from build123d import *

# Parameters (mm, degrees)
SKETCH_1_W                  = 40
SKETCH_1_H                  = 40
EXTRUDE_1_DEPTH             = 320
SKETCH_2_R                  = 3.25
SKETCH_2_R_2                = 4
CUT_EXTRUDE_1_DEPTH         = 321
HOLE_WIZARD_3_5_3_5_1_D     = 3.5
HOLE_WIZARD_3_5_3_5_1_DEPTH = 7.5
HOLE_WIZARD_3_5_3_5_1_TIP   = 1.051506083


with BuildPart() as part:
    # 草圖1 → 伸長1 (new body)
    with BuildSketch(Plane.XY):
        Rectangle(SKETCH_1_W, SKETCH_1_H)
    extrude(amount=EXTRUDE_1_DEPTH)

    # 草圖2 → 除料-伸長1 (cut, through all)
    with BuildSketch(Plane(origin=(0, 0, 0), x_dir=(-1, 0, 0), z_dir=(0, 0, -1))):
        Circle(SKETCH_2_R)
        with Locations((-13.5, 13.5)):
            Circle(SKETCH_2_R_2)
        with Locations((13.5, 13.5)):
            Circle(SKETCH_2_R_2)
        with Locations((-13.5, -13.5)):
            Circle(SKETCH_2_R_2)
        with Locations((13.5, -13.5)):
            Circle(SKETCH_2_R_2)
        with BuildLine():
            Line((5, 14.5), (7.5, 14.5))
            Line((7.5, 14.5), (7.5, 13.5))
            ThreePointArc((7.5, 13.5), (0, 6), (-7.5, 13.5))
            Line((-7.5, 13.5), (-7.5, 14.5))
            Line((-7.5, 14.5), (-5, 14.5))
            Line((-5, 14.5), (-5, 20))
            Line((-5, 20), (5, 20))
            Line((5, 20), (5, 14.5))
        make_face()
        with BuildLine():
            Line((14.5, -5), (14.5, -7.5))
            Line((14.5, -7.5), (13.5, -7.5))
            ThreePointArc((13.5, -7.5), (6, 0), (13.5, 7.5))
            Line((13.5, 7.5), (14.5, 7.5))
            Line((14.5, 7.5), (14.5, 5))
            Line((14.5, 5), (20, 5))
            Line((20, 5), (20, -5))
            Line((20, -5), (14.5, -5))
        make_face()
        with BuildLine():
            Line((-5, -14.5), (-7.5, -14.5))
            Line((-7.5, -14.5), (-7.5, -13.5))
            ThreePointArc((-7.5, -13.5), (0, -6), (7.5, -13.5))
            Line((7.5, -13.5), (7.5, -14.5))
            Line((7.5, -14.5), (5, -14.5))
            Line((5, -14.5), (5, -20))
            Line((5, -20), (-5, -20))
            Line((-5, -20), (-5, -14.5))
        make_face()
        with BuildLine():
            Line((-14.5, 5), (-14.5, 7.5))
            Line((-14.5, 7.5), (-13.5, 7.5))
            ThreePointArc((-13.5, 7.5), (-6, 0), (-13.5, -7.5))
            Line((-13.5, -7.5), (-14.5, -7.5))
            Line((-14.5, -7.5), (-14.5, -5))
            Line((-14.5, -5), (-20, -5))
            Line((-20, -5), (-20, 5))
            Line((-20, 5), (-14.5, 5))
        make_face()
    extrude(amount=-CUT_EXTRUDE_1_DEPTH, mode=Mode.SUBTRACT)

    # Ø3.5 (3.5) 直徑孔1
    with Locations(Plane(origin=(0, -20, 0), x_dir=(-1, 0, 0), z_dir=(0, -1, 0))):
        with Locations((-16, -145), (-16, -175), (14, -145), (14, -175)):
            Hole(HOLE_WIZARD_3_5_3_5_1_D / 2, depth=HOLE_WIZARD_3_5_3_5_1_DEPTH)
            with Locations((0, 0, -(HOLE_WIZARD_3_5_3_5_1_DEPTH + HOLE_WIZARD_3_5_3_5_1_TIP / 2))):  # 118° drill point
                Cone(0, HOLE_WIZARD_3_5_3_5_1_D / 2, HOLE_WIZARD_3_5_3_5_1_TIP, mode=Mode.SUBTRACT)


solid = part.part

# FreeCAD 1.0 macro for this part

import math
import FreeCAD as App
import Part
import Sketcher
from FreeCAD import Vector

doc = App.newDocument("Part")
body = doc.addObject("PartDesign::Body", "Body")

# Sketch on XY plane
sketch1 = doc.addObject("Sketcher::SketchObject", "Sketch")
body.addObject(sketch1)
sketch1.AttachmentSupport = (doc.XY_Plane, [""])
sketch1.MapMode = "FlatFace"
sketch1.addGeometry(Part.LineSegment(Vector(-20, 20, 0), Vector(-20, -20, 0)), False)
sketch1.addGeometry(Part.LineSegment(Vector(-20, -20, 0), Vector(20, -20, 0)), False)
sketch1.addGeometry(Part.LineSegment(Vector(20, -20, 0), Vector(20, 20, 0)), False)
sketch1.addGeometry(Part.LineSegment(Vector(20, 20, 0), Vector(-20, 20, 0)), False)
sketch1.addConstraint(Sketcher.Constraint("Coincident", 0, 2, 1, 1))
sketch1.addConstraint(Sketcher.Constraint("Coincident", 1, 2, 2, 1))
sketch1.addConstraint(Sketcher.Constraint("Coincident", 2, 2, 3, 1))
sketch1.addConstraint(Sketcher.Constraint("Coincident", 3, 2, 0, 1))
sketch1.addConstraint(Sketcher.Constraint("Vertical", 0))
sketch1.addConstraint(Sketcher.Constraint("Horizontal", 1))
sketch1.addConstraint(Sketcher.Constraint("Vertical", 2))
sketch1.addConstraint(Sketcher.Constraint("Horizontal", 3))
sketch1.addConstraint(Sketcher.Constraint("Symmetric", 0, 2, 2, 2, -1, 1))
sketch1.addConstraint(Sketcher.Constraint("Equal", 3, 0))
sketch1.addConstraint(Sketcher.Constraint("DistanceX", 1, 1, 1, 2, 40.0))
pad1 = doc.addObject("PartDesign::Pad", "Pad")
body.addObject(pad1)
pad1.Profile = sketch1
pad1.Length = 320

# Sketch on XY plane
sketch2 = doc.addObject("Sketcher::SketchObject", "Sketch001")
body.addObject(sketch2)
sketch2.AttachmentSupport = (doc.XY_Plane, [""])
sketch2.MapMode = "FlatFace"
sketch2.addGeometry(Part.Circle(Vector(0, 0, 0), Vector(0, 0, 1), 3.25), False)
sketch2.addGeometry(Part.Circle(Vector(13.5, 13.5, 0), Vector(0, 0, 1), 4), False)
sketch2.addGeometry(Part.Circle(Vector(-13.5, 13.5, 0), Vector(0, 0, 1), 4), False)
sketch2.addGeometry(Part.Circle(Vector(13.5, -13.5, 0), Vector(0, 0, 1), 4), False)
sketch2.addGeometry(Part.Circle(Vector(-13.5, -13.5, 0), Vector(0, 0, 1), 4), False)
sketch2.addGeometry(Part.LineSegment(Vector(-7.5, 14.5, 0), Vector(-5, 14.5, 0)), False)
sketch2.addGeometry(Part.LineSegment(Vector(-5, 14.5, 0), Vector(-5, 20, 0)), False)
sketch2.addGeometry(Part.LineSegment(Vector(-5, 20, 0), Vector(5, 20, 0)), False)
sketch2.addGeometry(Part.LineSegment(Vector(5, 20, 0), Vector(5, 14.5, 0)), False)
sketch2.addGeometry(Part.LineSegment(Vector(5, 14.5, 0), Vector(7.5, 14.5, 0)), False)
sketch2.addGeometry(Part.LineSegment(Vector(7.5, 14.5, 0), Vector(7.5, 13.5, 0)), False)
sketch2.addGeometry(Part.ArcOfCircle(Part.Circle(Vector(0, 13.5, 0), Vector(0, 0, 1), 7.5), math.radians(180), math.radians(360)), False)
sketch2.addGeometry(Part.LineSegment(Vector(-7.5, 13.5, 0), Vector(-7.5, 14.5, 0)), False)
sketch2.addGeometry(Part.LineSegment(Vector(-14.5, -7.5, 0), Vector(-14.5, -5, 0)), False)
sketch2.addGeometry(Part.LineSegment(Vector(-14.5, -5, 0), Vector(-20, -5, 0)), False)
sketch2.addGeometry(Part.LineSegment(Vector(-20, -5, 0), Vector(-20, 5, 0)), False)
sketch2.addGeometry(Part.LineSegment(Vector(-20, 5, 0), Vector(-14.5, 5, 0)), False)
sketch2.addGeometry(Part.LineSegment(Vector(-14.5, 5, 0), Vector(-14.5, 7.5, 0)), False)
sketch2.addGeometry(Part.LineSegment(Vector(-14.5, 7.5, 0), Vector(-13.5, 7.5, 0)), False)
sketch2.addGeometry(Part.ArcOfCircle(Part.Circle(Vector(-13.5, 0, 0), Vector(0, 0, 1), 7.5), math.radians(-90), math.radians(90)), False)
sketch2.addGeometry(Part.LineSegment(Vector(-13.5, -7.5, 0), Vector(-14.5, -7.5, 0)), False)
sketch2.addGeometry(Part.LineSegment(Vector(7.5, -14.5, 0), Vector(5, -14.5, 0)), False)
sketch2.addGeometry(Part.LineSegment(Vector(5, -14.5, 0), Vector(5, -20, 0)), False)
sketch2.addGeometry(Part.LineSegment(Vector(5, -20, 0), Vector(-5, -20, 0)), False)
sketch2.addGeometry(Part.LineSegment(Vector(-5, -20, 0), Vector(-5, -14.5, 0)), False)
sketch2.addGeometry(Part.LineSegment(Vector(-5, -14.5, 0), Vector(-7.5, -14.5, 0)), False)
sketch2.addGeometry(Part.LineSegment(Vector(-7.5, -14.5, 0), Vector(-7.5, -13.5, 0)), False)
sketch2.addGeometry(Part.ArcOfCircle(Part.Circle(Vector(0, -13.5, 0), Vector(0, 0, 1), 7.5), math.radians(0), math.radians(180)), False)
sketch2.addGeometry(Part.LineSegment(Vector(7.5, -13.5, 0), Vector(7.5, -14.5, 0)), False)
sketch2.addGeometry(Part.LineSegment(Vector(14.5, 7.5, 0), Vector(14.5, 5, 0)), False)
sketch2.addGeometry(Part.LineSegment(Vector(14.5, 5, 0), Vector(20, 5, 0)), False)
sketch2.addGeometry(Part.LineSegment(Vector(20, 5, 0), Vector(20, -5, 0)), False)
sketch2.addGeometry(Part.LineSegment(Vector(20, -5, 0), Vector(14.5, -5, 0)), False)
sketch2.addGeometry(Part.LineSegment(Vector(14.5, -5, 0), Vector(14.5, -7.5, 0)), False)
sketch2.addGeometry(Part.LineSegment(Vector(14.5, -7.5, 0), Vector(13.5, -7.5, 0)), False)
sketch2.addGeometry(Part.ArcOfCircle(Part.Circle(Vector(13.5, 0, 0), Vector(0, 0, 1), 7.5), math.radians(90), math.radians(270)), False)
sketch2.addGeometry(Part.LineSegment(Vector(13.5, 7.5, 0), Vector(14.5, 7.5, 0)), False)
sketch2.addConstraint(Sketcher.Constraint("Coincident", 5, 2, 6, 1))
sketch2.addConstraint(Sketcher.Constraint("Coincident", 6, 2, 7, 1))
sketch2.addConstraint(Sketcher.Constraint("Coincident", 7, 2, 8, 1))
sketch2.addConstraint(Sketcher.Constraint("Coincident", 8, 2, 9, 1))
sketch2.addConstraint(Sketcher.Constraint("Coincident", 9, 2, 10, 1))
sketch2.addConstraint(Sketcher.Constraint("Tangent", 10, 2, 11, 2))
sketch2.addConstraint(Sketcher.Constraint("Tangent", 11, 1, 12, 1))
sketch2.addConstraint(Sketcher.Constraint("Coincident", 12, 2, 5, 1))
sketch2.addConstraint(Sketcher.Constraint("Coincident", 13, 2, 14, 1))
sketch2.addConstraint(Sketcher.Constraint("Coincident", 14, 2, 15, 1))
sketch2.addConstraint(Sketcher.Constraint("Coincident", 15, 2, 16, 1))
sketch2.addConstraint(Sketcher.Constraint("Coincident", 16, 2, 17, 1))
sketch2.addConstraint(Sketcher.Constraint("Coincident", 17, 2, 18, 1))
sketch2.addConstraint(Sketcher.Constraint("Tangent", 18, 2, 19, 2))
sketch2.addConstraint(Sketcher.Constraint("Tangent", 19, 1, 20, 1))
sketch2.addConstraint(Sketcher.Constraint("Coincident", 20, 2, 13, 1))
sketch2.addConstraint(Sketcher.Constraint("Coincident", 21, 2, 22, 1))
sketch2.addConstraint(Sketcher.Constraint("Coincident", 22, 2, 23, 1))
sketch2.addConstraint(Sketcher.Constraint("Coincident", 23, 2, 24, 1))
sketch2.addConstraint(Sketcher.Constraint("Coincident", 24, 2, 25, 1))
sketch2.addConstraint(Sketcher.Constraint("Coincident", 25, 2, 26, 1))
sketch2.addConstraint(Sketcher.Constraint("Tangent", 26, 2, 27, 2))
sketch2.addConstraint(Sketcher.Constraint("Tangent", 27, 1, 28, 1))
sketch2.addConstraint(Sketcher.Constraint("Coincident", 28, 2, 21, 1))
sketch2.addConstraint(Sketcher.Constraint("Coincident", 29, 2, 30, 1))
sketch2.addConstraint(Sketcher.Constraint("Coincident", 30, 2, 31, 1))
sketch2.addConstraint(Sketcher.Constraint("Coincident", 31, 2, 32, 1))
sketch2.addConstraint(Sketcher.Constraint("Coincident", 32, 2, 33, 1))
sketch2.addConstraint(Sketcher.Constraint("Coincident", 33, 2, 34, 1))
sketch2.addConstraint(Sketcher.Constraint("Tangent", 34, 2, 35, 2))
sketch2.addConstraint(Sketcher.Constraint("Tangent", 35, 1, 36, 1))
sketch2.addConstraint(Sketcher.Constraint("Coincident", 36, 2, 29, 1))
sketch2.addConstraint(Sketcher.Constraint("Horizontal", 5))
sketch2.addConstraint(Sketcher.Constraint("Vertical", 6))
sketch2.addConstraint(Sketcher.Constraint("Horizontal", 7))
sketch2.addConstraint(Sketcher.Constraint("Vertical", 8))
sketch2.addConstraint(Sketcher.Constraint("Horizontal", 9))
sketch2.addConstraint(Sketcher.Constraint("Vertical", 10))
sketch2.addConstraint(Sketcher.Constraint("Vertical", 12))
sketch2.addConstraint(Sketcher.Constraint("Vertical", 13))
sketch2.addConstraint(Sketcher.Constraint("Horizontal", 14))
sketch2.addConstraint(Sketcher.Constraint("Vertical", 15))
sketch2.addConstraint(Sketcher.Constraint("Horizontal", 16))
sketch2.addConstraint(Sketcher.Constraint("Vertical", 17))
sketch2.addConstraint(Sketcher.Constraint("Horizontal", 18))
sketch2.addConstraint(Sketcher.Constraint("Horizontal", 20))
sketch2.addConstraint(Sketcher.Constraint("Horizontal", 21))
sketch2.addConstraint(Sketcher.Constraint("Vertical", 22))
sketch2.addConstraint(Sketcher.Constraint("Horizontal", 23))
sketch2.addConstraint(Sketcher.Constraint("Vertical", 24))
sketch2.addConstraint(Sketcher.Constraint("Horizontal", 25))
sketch2.addConstraint(Sketcher.Constraint("Vertical", 26))
sketch2.addConstraint(Sketcher.Constraint("Vertical", 28))
sketch2.addConstraint(Sketcher.Constraint("Vertical", 29))
sketch2.addConstraint(Sketcher.Constraint("Horizontal", 30))
sketch2.addConstraint(Sketcher.Constraint("Vertical", 31))
sketch2.addConstraint(Sketcher.Constraint("Horizontal", 32))
sketch2.addConstraint(Sketcher.Constraint("Vertical", 33))
sketch2.addConstraint(Sketcher.Constraint("Horizontal", 34))
sketch2.addConstraint(Sketcher.Constraint("Horizontal", 36))
sketch2.addConstraint(Sketcher.Constraint("Coincident", 0, 3, -1, 1))
sketch2.addConstraint(Sketcher.Constraint("Equal", 1, 2))
sketch2.addConstraint(Sketcher.Constraint("Equal", 2, 3))
sketch2.addConstraint(Sketcher.Constraint("Equal", 3, 4))
sketch2.addConstraint(Sketcher.Constraint("Equal", 11, 19))
sketch2.addConstraint(Sketcher.Constraint("Equal", 19, 27))
sketch2.addConstraint(Sketcher.Constraint("Equal", 27, 35))
sketch2.addConstraint(Sketcher.Constraint("Symmetric", 2, 3, 3, 3, -1, 1))
sketch2.addConstraint(Sketcher.Constraint("Symmetric", 1, 3, 4, 3, -1, 1))
sketch2.addConstraint(Sketcher.Constraint("Symmetric", 11, 3, 27, 3, -1, 1))
sketch2.addConstraint(Sketcher.Constraint("Symmetric", 19, 3, 35, 3, -1, 1))
sketch2.addConstraint(Sketcher.Constraint("Symmetric", 5, 2, 21, 2, -1, 1))
sketch2.addConstraint(Sketcher.Constraint("Symmetric", 7, 2, 23, 2, -1, 1))
sketch2.addConstraint(Sketcher.Constraint("Symmetric", 13, 2, 29, 2, -1, 1))
sketch2.addConstraint(Sketcher.Constraint("Symmetric", 15, 2, 31, 2, -1, 1))
sketch2.addConstraint(Sketcher.Constraint("Symmetric", 1, 3, 2, 3, -2))
sketch2.addConstraint(Sketcher.Constraint("Symmetric", 5, 2, 8, 2, -2))
sketch2.addConstraint(Sketcher.Constraint("Symmetric", 25, 2, 28, 2, -2))
sketch2.addConstraint(Sketcher.Constraint("Symmetric", 16, 2, 29, 2, -2))
sketch2.addConstraint(Sketcher.Constraint("Symmetric", 20, 2, 33, 2, -2))
sketch2.addConstraint(Sketcher.Constraint("Horizontal", 2, 3, 11, 3))
sketch2.addConstraint(Sketcher.Constraint("Vertical", 4, 3, 19, 3))
sketch2.addConstraint(Sketcher.Constraint("Equal", 32, 6))
sketch2.addConstraint(Sketcher.Constraint("Equal", 36, 10))
sketch2.addConstraint(Sketcher.Constraint("Equal", 25, 13))
sketch2.addConstraint(Sketcher.Constraint("Diameter", 1, 8.0))
sketch2.addConstraint(Sketcher.Constraint("Diameter", 0, 6.5))
sketch2.addConstraint(Sketcher.Constraint("Radius", 11, 7.5))
sketch2.addConstraint(Sketcher.Constraint("DistanceX", 7, 1, 7, 2, 10.0))
sketch2.addConstraint(Sketcher.Constraint("DistanceX", 18, 1, 18, 2, 1.0))
sketch2.addConstraint(Sketcher.Constraint("DistanceX", 14, 2, 14, 1, 5.5))
sketch2.addConstraint(Sketcher.Constraint("DistanceY", -1, 1, 6, 2, 20.0))
sketch2.addConstraint(Sketcher.Constraint("DistanceX", 14, 2, -1, 1, 20.0))
pocket1 = doc.addObject("PartDesign::Pocket", "Pocket")
body.addObject(pocket1)
pocket1.Profile = sketch2
pocket1.Type = "ThroughAll"
pocket1.Reversed = True

# Sketch on XZ plane
sketch3 = doc.addObject("Sketcher::SketchObject", "Sketch002")
body.addObject(sketch3)
sketch3.AttachmentSupport = (doc.XZ_Plane, [""])
sketch3.MapMode = "FlatFace"
sketch3.AttachmentOffset = App.Placement(Vector(0, 0, 20), App.Rotation())
sketch3.addGeometry(Part.Circle(Vector(16, 145, 0), Vector(0, 0, 1), 1.75), False)
sketch3.addGeometry(Part.Circle(Vector(16, 175, 0), Vector(0, 0, 1), 1.75), False)
sketch3.addGeometry(Part.Circle(Vector(-14, 145, 0), Vector(0, 0, 1), 1.75), False)
sketch3.addGeometry(Part.Circle(Vector(-14, 175, 0), Vector(0, 0, 1), 1.75), False)
sketch3.addConstraint(Sketcher.Constraint("Equal", 0, 1))
sketch3.addConstraint(Sketcher.Constraint("Equal", 1, 2))
sketch3.addConstraint(Sketcher.Constraint("Equal", 2, 3))
sketch3.addConstraint(Sketcher.Constraint("Horizontal", 0, 3, 2, 3))
sketch3.addConstraint(Sketcher.Constraint("Horizontal", 1, 3, 3, 3))
sketch3.addConstraint(Sketcher.Constraint("Vertical", 0, 3, 1, 3))
sketch3.addConstraint(Sketcher.Constraint("Vertical", 2, 3, 3, 3))
sketch3.addConstraint(Sketcher.Constraint("Diameter", 0, 3.5))
sketch3.addConstraint(Sketcher.Constraint("DistanceX", -1, 1, 0, 3, 16.0))
sketch3.addConstraint(Sketcher.Constraint("DistanceY", -1, 1, 0, 3, 145.0))
sketch3.addConstraint(Sketcher.Constraint("DistanceY", -1, 1, 1, 3, 175.0))
sketch3.addConstraint(Sketcher.Constraint("DistanceX", 2, 3, -1, 1, 14.0))
doc.recompute()
hole = doc.addObject("PartDesign::Hole", "Hole")
body.addObject(hole)
hole.Profile = sketch3
hole.ThreadType = "None"
hole.Diameter = 3.5
hole.DepthType = "Dimension"
hole.Depth = 7.5
hole.DrillPoint = "Angled"
hole.DrillPointAngle = 118

doc.recompute()
